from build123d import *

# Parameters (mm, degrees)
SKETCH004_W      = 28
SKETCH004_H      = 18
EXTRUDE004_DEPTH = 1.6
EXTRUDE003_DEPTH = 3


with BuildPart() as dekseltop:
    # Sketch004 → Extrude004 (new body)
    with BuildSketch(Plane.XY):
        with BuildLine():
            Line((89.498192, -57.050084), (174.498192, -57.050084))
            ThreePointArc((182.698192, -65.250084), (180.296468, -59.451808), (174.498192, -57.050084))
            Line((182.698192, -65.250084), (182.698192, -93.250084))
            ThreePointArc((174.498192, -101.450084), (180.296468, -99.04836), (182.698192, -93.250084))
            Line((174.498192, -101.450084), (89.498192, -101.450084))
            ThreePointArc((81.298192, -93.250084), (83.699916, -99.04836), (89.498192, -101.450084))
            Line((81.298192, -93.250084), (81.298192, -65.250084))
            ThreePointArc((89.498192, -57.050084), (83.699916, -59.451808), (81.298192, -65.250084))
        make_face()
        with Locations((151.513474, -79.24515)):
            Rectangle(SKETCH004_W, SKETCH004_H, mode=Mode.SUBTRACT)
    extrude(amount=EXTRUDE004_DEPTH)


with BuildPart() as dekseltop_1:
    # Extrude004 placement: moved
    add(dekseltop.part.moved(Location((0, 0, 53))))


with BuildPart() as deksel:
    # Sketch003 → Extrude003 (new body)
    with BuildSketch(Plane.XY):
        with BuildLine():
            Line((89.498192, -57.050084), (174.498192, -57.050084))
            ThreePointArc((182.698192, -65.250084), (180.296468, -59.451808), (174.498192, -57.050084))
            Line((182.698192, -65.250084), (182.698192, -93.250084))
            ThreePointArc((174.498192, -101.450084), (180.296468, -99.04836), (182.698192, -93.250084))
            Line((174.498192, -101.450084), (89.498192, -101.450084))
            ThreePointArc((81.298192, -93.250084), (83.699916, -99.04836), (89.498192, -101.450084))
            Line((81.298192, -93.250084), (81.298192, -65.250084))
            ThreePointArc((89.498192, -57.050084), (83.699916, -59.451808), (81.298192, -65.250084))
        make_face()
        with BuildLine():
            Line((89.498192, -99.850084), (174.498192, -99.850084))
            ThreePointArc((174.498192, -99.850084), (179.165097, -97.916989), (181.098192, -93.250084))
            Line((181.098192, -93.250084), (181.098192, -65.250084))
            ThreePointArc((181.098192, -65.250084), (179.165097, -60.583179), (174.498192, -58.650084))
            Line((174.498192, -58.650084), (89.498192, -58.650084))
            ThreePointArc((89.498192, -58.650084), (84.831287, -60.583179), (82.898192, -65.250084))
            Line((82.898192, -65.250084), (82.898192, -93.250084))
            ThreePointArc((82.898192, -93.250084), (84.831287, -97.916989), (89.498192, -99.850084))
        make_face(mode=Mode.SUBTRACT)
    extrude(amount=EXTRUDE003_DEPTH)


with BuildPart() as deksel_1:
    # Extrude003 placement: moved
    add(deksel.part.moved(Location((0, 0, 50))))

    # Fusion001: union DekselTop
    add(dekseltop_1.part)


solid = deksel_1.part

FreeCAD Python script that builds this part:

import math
import FreeCAD as App
import Part
import Sketcher
from FreeCAD import Vector

doc = App.newDocument("Part")
body = doc.addObject("PartDesign::Body", "Body")

sketch1 = body.newObject("Sketcher::SketchObject", "Sketch")
sketch1.AttachmentSupport = (doc.getObject("XY_Plane"), [""])
sketch1.MapMode = "FlatFace"
sketch1.addGeometry([
    Part.LineSegment(Vector(174, -57, 0), Vector(89, -57, 0)),
    Part.ArcOfCircle(Part.Circle(Vector(89, -65, 0), Vector(0, 0, 1), 8), math.radians(90), math.radians(180)),
    Part.LineSegment(Vector(81, -65, 0), Vector(81, -93, 0)),
    Part.ArcOfCircle(Part.Circle(Vector(89, -93, 0), Vector(0, 0, 1), 8), math.radians(180), math.radians(270)),
    Part.LineSegment(Vector(89, -101, 0), Vector(174, -101, 0)),
    Part.ArcOfCircle(Part.Circle(Vector(174, -93, 0), Vector(0, 0, 1), 8), math.radians(-90), math.radians(0)),
    Part.LineSegment(Vector(183, -93, 0), Vector(183, -65, 0)),
    Part.ArcOfCircle(Part.Circle(Vector(174, -65, 0), Vector(0, 0, 1), 8), math.radians(0), math.radians(90)),
    Part.LineSegment(Vector(138, -88, 0), Vector(138, -70, 0)),
    Part.LineSegment(Vector(138, -70, 0), Vector(166, -70, 0)),
    Part.LineSegment(Vector(166, -70, 0), Vector(166, -88, 0)),
    Part.LineSegment(Vector(166, -88, 0), Vector(138, -88, 0)),
], False)
sketch1.addConstraint([
    Sketcher.Constraint("Tangent", 0, 2, 1, 1),
    Sketcher.Constraint("Tangent", 1, 2, 2, 1),
    Sketcher.Constraint("Tangent", 2, 2, 3, 1),
    Sketcher.Constraint("Tangent", 3, 2, 4, 1),
    Sketcher.Constraint("Tangent", 4, 2, 5, 1),
    Sketcher.Constraint("Tangent", 5, 2, 6, 1),
    Sketcher.Constraint("Tangent", 6, 2, 7, 1),
    Sketcher.Constraint("Tangent", 7, 2, 0, 1),
    Sketcher.Constraint("Coincident", 8, 2, 9, 1),
    Sketcher.Constraint("Coincident", 9, 2, 10, 1),
    Sketcher.Constraint("Coincident", 10, 2, 11, 1),
    Sketcher.Constraint("Coincident", 11, 2, 8, 1),
    Sketcher.Constraint("Horizontal", 0),
    Sketcher.Constraint("Vertical", 2),
    Sketcher.Constraint("Horizontal", 4),
    Sketcher.Constraint("Vertical", 6),
    Sketcher.Constraint("Vertical", 8),
    Sketcher.Constraint("Horizontal", 9),
    Sketcher.Constraint("Vertical", 10),
    Sketcher.Constraint("Horizontal", 11),
    Sketcher.Constraint("Equal", 1, 3),
    Sketcher.Constraint("Equal", 3, 5),
    Sketcher.Constraint("Equal", 5, 7),
    Sketcher.Constraint("Equal", 11, 2),
    Sketcher.Constraint("Radius", 1, 8.199999),
    Sketcher.Constraint("DistanceX", 0, 2, 0, 1, 85.0),
    Sketcher.Constraint("DistanceX", 9, 1, 9, 2, 28.0),
    Sketcher.Constraint("DistanceY", 8, 1, 8, 2, 18.0),
    Sketcher.Constraint("DistanceX", -1, 1, 1, 3, 89.498191),
    Sketcher.Constraint("DistanceY", 8, 2, -1, 1, 70.24515),
    Sketcher.Constraint("DistanceX", 8, 2, 7, 3, 36.984719),
    Sketcher.Constraint("DistanceY", 1, 3, -1, 1, 65.250083),
])
pad1 = body.newObject("PartDesign::Pad", "Pad")
pad1.Profile = sketch1
pad1.Length = 1.6
body2 = doc.addObject("PartDesign::Body", "Body001")
doc.recompute()

body.Placement = App.Placement(Vector(0, 0, 53), App.Rotation(Vector(0, 0, 1), 0))
boolean = body2.newObject("PartDesign::Boolean", "Boolean")
boolean.Type = "Fuse"
boolean.addObjects([body])
body3 = doc.addObject("PartDesign::Body", "Body002")

sketch2 = body3.newObject("Sketcher::SketchObject", "Sketch001")
sketch2.AttachmentSupport = (doc.getObject("XY_Plane002"), [""])
sketch2.MapMode = "FlatFace"
sketch2.addGeometry([
    Part.LineSegment(Vector(174, -57, 0), Vector(89, -57, 0)),
    Part.ArcOfCircle(Part.Circle(Vector(89, -65, 0), Vector(0, 0, 1), 8), math.radians(90), math.radians(180)),
    Part.LineSegment(Vector(81, -65, 0), Vector(81, -93, 0)),
    Part.ArcOfCircle(Part.Circle(Vector(89, -93, 0), Vector(0, 0, 1), 8), math.radians(180), math.radians(270)),
    Part.LineSegment(Vector(89, -101, 0), Vector(174, -101, 0)),
    Part.ArcOfCircle(Part.Circle(Vector(174, -93, 0), Vector(0, 0, 1), 8), math.radians(-90), math.radians(0)),
    Part.LineSegment(Vector(183, -93, 0), Vector(183, -65, 0)),
    Part.ArcOfCircle(Part.Circle(Vector(174, -65, 0), Vector(0, 0, 1), 8), math.radians(0), math.radians(90)),
    Part.ArcOfCircle(Part.Circle(Vector(89, -93, 0), Vector(0, 0, 1), 7), math.radians(180), math.radians(270)),
    Part.LineSegment(Vector(83, -93, 0), Vector(83, -65, 0)),
    Part.ArcOfCircle(Part.Circle(Vector(89, -65, 0), Vector(0, 0, 1), 7), math.radians(90), math.radians(180)),
    Part.LineSegment(Vector(89, -59, 0), Vector(174, -59, 0)),
    Part.ArcOfCircle(Part.Circle(Vector(174, -65, 0), Vector(0, 0, 1), 7), math.radians(0), math.radians(90)),
    Part.LineSegment(Vector(181, -65, 0), Vector(181, -93, 0)),
    Part.ArcOfCircle(Part.Circle(Vector(174, -93, 0), Vector(0, 0, 1), 7), math.radians(-90), math.radians(0)),
    Part.LineSegment(Vector(174, -100, 0), Vector(89, -100, 0)),
], False)
sketch2.addConstraint([
    Sketcher.Constraint("Tangent", 0, 2, 1, 1),
    Sketcher.Constraint("Tangent", 1, 2, 2, 1),
    Sketcher.Constraint("Tangent", 2, 2, 3, 1),
    Sketcher.Constraint("Tangent", 3, 2, 4, 1),
    Sketcher.Constraint("Tangent", 4, 2, 5, 1),
    Sketcher.Constraint("Tangent", 5, 2, 6, 1),
    Sketcher.Constraint("Tangent", 6, 2, 7, 1),
    Sketcher.Constraint("Tangent", 7, 2, 0, 1),
    Sketcher.Constraint("Tangent", 8, 1, 9, 1),
    Sketcher.Constraint("Tangent", 9, 2, 10, 2),
    Sketcher.Constraint("Tangent", 10, 1, 11, 1),
    Sketcher.Constraint("Tangent", 11, 2, 12, 2),
    Sketcher.Constraint("Tangent", 12, 1, 13, 1),
    Sketcher.Constraint("Tangent", 13, 2, 14, 2),
    Sketcher.Constraint("Tangent", 14, 1, 15, 1),
    Sketcher.Constraint("Tangent", 15, 2, 8, 2),
    Sketcher.Constraint("Horizontal", 0),
    Sketcher.Constraint("Vertical", 2),
    Sketcher.Constraint("Horizontal", 4),
    Sketcher.Constraint("Vertical", 6),
    Sketcher.Constraint("Vertical", 9),
    Sketcher.Constraint("Horizontal", 11),
    Sketcher.Constraint("Vertical", 13),
    Sketcher.Constraint("Horizontal", 15),
    Sketcher.Constraint("Coincident", 8, 3, 3, 3),
    Sketcher.Constraint("Coincident", 10, 3, 1, 3),
    Sketcher.Constraint("Coincident", 12, 3, 7, 3),
    Sketcher.Constraint("Equal", 1, 3),
    Sketcher.Constraint("Equal", 3, 5),
    Sketcher.Constraint("Equal", 5, 7),
    Sketcher.Constraint("Equal", 12, 14),
    Sketcher.Constraint("Radius", 1, 8.199999),
    Sketcher.Constraint("Radius", 8, 6.599999),
    Sketcher.Constraint("DistanceX", 0, 2, 0, 1, 85.0),
    Sketcher.Constraint("DistanceY", 2, 2, 2, 1, 28.0),
    Sketcher.Constraint("DistanceX", -1, 1, 1, 3, 89.498191),
    Sketcher.Constraint("DistanceY", 1, 3, -1, 1, 65.250083),
])
pad2 = body3.newObject("PartDesign::Pad", "Pad001")
pad2.Profile = sketch2
pad2.Length = 3
body4 = doc.addObject("PartDesign::Body", "Body003")
doc.recompute()

body3.Placement = App.Placement(Vector(0, 0, 50), App.Rotation(Vector(0, 0, 1), 0))
boolean2 = body4.newObject("PartDesign::Boolean", "Boolean001")
boolean2.Type = "Fuse"
boolean2.addObjects([body3])
doc.recompute()

boolean3 = body4.newObject("PartDesign::Boolean", "Boolean002")
boolean3.Type = "Fuse"
boolean3.addObjects([body2])

doc.recompute()
